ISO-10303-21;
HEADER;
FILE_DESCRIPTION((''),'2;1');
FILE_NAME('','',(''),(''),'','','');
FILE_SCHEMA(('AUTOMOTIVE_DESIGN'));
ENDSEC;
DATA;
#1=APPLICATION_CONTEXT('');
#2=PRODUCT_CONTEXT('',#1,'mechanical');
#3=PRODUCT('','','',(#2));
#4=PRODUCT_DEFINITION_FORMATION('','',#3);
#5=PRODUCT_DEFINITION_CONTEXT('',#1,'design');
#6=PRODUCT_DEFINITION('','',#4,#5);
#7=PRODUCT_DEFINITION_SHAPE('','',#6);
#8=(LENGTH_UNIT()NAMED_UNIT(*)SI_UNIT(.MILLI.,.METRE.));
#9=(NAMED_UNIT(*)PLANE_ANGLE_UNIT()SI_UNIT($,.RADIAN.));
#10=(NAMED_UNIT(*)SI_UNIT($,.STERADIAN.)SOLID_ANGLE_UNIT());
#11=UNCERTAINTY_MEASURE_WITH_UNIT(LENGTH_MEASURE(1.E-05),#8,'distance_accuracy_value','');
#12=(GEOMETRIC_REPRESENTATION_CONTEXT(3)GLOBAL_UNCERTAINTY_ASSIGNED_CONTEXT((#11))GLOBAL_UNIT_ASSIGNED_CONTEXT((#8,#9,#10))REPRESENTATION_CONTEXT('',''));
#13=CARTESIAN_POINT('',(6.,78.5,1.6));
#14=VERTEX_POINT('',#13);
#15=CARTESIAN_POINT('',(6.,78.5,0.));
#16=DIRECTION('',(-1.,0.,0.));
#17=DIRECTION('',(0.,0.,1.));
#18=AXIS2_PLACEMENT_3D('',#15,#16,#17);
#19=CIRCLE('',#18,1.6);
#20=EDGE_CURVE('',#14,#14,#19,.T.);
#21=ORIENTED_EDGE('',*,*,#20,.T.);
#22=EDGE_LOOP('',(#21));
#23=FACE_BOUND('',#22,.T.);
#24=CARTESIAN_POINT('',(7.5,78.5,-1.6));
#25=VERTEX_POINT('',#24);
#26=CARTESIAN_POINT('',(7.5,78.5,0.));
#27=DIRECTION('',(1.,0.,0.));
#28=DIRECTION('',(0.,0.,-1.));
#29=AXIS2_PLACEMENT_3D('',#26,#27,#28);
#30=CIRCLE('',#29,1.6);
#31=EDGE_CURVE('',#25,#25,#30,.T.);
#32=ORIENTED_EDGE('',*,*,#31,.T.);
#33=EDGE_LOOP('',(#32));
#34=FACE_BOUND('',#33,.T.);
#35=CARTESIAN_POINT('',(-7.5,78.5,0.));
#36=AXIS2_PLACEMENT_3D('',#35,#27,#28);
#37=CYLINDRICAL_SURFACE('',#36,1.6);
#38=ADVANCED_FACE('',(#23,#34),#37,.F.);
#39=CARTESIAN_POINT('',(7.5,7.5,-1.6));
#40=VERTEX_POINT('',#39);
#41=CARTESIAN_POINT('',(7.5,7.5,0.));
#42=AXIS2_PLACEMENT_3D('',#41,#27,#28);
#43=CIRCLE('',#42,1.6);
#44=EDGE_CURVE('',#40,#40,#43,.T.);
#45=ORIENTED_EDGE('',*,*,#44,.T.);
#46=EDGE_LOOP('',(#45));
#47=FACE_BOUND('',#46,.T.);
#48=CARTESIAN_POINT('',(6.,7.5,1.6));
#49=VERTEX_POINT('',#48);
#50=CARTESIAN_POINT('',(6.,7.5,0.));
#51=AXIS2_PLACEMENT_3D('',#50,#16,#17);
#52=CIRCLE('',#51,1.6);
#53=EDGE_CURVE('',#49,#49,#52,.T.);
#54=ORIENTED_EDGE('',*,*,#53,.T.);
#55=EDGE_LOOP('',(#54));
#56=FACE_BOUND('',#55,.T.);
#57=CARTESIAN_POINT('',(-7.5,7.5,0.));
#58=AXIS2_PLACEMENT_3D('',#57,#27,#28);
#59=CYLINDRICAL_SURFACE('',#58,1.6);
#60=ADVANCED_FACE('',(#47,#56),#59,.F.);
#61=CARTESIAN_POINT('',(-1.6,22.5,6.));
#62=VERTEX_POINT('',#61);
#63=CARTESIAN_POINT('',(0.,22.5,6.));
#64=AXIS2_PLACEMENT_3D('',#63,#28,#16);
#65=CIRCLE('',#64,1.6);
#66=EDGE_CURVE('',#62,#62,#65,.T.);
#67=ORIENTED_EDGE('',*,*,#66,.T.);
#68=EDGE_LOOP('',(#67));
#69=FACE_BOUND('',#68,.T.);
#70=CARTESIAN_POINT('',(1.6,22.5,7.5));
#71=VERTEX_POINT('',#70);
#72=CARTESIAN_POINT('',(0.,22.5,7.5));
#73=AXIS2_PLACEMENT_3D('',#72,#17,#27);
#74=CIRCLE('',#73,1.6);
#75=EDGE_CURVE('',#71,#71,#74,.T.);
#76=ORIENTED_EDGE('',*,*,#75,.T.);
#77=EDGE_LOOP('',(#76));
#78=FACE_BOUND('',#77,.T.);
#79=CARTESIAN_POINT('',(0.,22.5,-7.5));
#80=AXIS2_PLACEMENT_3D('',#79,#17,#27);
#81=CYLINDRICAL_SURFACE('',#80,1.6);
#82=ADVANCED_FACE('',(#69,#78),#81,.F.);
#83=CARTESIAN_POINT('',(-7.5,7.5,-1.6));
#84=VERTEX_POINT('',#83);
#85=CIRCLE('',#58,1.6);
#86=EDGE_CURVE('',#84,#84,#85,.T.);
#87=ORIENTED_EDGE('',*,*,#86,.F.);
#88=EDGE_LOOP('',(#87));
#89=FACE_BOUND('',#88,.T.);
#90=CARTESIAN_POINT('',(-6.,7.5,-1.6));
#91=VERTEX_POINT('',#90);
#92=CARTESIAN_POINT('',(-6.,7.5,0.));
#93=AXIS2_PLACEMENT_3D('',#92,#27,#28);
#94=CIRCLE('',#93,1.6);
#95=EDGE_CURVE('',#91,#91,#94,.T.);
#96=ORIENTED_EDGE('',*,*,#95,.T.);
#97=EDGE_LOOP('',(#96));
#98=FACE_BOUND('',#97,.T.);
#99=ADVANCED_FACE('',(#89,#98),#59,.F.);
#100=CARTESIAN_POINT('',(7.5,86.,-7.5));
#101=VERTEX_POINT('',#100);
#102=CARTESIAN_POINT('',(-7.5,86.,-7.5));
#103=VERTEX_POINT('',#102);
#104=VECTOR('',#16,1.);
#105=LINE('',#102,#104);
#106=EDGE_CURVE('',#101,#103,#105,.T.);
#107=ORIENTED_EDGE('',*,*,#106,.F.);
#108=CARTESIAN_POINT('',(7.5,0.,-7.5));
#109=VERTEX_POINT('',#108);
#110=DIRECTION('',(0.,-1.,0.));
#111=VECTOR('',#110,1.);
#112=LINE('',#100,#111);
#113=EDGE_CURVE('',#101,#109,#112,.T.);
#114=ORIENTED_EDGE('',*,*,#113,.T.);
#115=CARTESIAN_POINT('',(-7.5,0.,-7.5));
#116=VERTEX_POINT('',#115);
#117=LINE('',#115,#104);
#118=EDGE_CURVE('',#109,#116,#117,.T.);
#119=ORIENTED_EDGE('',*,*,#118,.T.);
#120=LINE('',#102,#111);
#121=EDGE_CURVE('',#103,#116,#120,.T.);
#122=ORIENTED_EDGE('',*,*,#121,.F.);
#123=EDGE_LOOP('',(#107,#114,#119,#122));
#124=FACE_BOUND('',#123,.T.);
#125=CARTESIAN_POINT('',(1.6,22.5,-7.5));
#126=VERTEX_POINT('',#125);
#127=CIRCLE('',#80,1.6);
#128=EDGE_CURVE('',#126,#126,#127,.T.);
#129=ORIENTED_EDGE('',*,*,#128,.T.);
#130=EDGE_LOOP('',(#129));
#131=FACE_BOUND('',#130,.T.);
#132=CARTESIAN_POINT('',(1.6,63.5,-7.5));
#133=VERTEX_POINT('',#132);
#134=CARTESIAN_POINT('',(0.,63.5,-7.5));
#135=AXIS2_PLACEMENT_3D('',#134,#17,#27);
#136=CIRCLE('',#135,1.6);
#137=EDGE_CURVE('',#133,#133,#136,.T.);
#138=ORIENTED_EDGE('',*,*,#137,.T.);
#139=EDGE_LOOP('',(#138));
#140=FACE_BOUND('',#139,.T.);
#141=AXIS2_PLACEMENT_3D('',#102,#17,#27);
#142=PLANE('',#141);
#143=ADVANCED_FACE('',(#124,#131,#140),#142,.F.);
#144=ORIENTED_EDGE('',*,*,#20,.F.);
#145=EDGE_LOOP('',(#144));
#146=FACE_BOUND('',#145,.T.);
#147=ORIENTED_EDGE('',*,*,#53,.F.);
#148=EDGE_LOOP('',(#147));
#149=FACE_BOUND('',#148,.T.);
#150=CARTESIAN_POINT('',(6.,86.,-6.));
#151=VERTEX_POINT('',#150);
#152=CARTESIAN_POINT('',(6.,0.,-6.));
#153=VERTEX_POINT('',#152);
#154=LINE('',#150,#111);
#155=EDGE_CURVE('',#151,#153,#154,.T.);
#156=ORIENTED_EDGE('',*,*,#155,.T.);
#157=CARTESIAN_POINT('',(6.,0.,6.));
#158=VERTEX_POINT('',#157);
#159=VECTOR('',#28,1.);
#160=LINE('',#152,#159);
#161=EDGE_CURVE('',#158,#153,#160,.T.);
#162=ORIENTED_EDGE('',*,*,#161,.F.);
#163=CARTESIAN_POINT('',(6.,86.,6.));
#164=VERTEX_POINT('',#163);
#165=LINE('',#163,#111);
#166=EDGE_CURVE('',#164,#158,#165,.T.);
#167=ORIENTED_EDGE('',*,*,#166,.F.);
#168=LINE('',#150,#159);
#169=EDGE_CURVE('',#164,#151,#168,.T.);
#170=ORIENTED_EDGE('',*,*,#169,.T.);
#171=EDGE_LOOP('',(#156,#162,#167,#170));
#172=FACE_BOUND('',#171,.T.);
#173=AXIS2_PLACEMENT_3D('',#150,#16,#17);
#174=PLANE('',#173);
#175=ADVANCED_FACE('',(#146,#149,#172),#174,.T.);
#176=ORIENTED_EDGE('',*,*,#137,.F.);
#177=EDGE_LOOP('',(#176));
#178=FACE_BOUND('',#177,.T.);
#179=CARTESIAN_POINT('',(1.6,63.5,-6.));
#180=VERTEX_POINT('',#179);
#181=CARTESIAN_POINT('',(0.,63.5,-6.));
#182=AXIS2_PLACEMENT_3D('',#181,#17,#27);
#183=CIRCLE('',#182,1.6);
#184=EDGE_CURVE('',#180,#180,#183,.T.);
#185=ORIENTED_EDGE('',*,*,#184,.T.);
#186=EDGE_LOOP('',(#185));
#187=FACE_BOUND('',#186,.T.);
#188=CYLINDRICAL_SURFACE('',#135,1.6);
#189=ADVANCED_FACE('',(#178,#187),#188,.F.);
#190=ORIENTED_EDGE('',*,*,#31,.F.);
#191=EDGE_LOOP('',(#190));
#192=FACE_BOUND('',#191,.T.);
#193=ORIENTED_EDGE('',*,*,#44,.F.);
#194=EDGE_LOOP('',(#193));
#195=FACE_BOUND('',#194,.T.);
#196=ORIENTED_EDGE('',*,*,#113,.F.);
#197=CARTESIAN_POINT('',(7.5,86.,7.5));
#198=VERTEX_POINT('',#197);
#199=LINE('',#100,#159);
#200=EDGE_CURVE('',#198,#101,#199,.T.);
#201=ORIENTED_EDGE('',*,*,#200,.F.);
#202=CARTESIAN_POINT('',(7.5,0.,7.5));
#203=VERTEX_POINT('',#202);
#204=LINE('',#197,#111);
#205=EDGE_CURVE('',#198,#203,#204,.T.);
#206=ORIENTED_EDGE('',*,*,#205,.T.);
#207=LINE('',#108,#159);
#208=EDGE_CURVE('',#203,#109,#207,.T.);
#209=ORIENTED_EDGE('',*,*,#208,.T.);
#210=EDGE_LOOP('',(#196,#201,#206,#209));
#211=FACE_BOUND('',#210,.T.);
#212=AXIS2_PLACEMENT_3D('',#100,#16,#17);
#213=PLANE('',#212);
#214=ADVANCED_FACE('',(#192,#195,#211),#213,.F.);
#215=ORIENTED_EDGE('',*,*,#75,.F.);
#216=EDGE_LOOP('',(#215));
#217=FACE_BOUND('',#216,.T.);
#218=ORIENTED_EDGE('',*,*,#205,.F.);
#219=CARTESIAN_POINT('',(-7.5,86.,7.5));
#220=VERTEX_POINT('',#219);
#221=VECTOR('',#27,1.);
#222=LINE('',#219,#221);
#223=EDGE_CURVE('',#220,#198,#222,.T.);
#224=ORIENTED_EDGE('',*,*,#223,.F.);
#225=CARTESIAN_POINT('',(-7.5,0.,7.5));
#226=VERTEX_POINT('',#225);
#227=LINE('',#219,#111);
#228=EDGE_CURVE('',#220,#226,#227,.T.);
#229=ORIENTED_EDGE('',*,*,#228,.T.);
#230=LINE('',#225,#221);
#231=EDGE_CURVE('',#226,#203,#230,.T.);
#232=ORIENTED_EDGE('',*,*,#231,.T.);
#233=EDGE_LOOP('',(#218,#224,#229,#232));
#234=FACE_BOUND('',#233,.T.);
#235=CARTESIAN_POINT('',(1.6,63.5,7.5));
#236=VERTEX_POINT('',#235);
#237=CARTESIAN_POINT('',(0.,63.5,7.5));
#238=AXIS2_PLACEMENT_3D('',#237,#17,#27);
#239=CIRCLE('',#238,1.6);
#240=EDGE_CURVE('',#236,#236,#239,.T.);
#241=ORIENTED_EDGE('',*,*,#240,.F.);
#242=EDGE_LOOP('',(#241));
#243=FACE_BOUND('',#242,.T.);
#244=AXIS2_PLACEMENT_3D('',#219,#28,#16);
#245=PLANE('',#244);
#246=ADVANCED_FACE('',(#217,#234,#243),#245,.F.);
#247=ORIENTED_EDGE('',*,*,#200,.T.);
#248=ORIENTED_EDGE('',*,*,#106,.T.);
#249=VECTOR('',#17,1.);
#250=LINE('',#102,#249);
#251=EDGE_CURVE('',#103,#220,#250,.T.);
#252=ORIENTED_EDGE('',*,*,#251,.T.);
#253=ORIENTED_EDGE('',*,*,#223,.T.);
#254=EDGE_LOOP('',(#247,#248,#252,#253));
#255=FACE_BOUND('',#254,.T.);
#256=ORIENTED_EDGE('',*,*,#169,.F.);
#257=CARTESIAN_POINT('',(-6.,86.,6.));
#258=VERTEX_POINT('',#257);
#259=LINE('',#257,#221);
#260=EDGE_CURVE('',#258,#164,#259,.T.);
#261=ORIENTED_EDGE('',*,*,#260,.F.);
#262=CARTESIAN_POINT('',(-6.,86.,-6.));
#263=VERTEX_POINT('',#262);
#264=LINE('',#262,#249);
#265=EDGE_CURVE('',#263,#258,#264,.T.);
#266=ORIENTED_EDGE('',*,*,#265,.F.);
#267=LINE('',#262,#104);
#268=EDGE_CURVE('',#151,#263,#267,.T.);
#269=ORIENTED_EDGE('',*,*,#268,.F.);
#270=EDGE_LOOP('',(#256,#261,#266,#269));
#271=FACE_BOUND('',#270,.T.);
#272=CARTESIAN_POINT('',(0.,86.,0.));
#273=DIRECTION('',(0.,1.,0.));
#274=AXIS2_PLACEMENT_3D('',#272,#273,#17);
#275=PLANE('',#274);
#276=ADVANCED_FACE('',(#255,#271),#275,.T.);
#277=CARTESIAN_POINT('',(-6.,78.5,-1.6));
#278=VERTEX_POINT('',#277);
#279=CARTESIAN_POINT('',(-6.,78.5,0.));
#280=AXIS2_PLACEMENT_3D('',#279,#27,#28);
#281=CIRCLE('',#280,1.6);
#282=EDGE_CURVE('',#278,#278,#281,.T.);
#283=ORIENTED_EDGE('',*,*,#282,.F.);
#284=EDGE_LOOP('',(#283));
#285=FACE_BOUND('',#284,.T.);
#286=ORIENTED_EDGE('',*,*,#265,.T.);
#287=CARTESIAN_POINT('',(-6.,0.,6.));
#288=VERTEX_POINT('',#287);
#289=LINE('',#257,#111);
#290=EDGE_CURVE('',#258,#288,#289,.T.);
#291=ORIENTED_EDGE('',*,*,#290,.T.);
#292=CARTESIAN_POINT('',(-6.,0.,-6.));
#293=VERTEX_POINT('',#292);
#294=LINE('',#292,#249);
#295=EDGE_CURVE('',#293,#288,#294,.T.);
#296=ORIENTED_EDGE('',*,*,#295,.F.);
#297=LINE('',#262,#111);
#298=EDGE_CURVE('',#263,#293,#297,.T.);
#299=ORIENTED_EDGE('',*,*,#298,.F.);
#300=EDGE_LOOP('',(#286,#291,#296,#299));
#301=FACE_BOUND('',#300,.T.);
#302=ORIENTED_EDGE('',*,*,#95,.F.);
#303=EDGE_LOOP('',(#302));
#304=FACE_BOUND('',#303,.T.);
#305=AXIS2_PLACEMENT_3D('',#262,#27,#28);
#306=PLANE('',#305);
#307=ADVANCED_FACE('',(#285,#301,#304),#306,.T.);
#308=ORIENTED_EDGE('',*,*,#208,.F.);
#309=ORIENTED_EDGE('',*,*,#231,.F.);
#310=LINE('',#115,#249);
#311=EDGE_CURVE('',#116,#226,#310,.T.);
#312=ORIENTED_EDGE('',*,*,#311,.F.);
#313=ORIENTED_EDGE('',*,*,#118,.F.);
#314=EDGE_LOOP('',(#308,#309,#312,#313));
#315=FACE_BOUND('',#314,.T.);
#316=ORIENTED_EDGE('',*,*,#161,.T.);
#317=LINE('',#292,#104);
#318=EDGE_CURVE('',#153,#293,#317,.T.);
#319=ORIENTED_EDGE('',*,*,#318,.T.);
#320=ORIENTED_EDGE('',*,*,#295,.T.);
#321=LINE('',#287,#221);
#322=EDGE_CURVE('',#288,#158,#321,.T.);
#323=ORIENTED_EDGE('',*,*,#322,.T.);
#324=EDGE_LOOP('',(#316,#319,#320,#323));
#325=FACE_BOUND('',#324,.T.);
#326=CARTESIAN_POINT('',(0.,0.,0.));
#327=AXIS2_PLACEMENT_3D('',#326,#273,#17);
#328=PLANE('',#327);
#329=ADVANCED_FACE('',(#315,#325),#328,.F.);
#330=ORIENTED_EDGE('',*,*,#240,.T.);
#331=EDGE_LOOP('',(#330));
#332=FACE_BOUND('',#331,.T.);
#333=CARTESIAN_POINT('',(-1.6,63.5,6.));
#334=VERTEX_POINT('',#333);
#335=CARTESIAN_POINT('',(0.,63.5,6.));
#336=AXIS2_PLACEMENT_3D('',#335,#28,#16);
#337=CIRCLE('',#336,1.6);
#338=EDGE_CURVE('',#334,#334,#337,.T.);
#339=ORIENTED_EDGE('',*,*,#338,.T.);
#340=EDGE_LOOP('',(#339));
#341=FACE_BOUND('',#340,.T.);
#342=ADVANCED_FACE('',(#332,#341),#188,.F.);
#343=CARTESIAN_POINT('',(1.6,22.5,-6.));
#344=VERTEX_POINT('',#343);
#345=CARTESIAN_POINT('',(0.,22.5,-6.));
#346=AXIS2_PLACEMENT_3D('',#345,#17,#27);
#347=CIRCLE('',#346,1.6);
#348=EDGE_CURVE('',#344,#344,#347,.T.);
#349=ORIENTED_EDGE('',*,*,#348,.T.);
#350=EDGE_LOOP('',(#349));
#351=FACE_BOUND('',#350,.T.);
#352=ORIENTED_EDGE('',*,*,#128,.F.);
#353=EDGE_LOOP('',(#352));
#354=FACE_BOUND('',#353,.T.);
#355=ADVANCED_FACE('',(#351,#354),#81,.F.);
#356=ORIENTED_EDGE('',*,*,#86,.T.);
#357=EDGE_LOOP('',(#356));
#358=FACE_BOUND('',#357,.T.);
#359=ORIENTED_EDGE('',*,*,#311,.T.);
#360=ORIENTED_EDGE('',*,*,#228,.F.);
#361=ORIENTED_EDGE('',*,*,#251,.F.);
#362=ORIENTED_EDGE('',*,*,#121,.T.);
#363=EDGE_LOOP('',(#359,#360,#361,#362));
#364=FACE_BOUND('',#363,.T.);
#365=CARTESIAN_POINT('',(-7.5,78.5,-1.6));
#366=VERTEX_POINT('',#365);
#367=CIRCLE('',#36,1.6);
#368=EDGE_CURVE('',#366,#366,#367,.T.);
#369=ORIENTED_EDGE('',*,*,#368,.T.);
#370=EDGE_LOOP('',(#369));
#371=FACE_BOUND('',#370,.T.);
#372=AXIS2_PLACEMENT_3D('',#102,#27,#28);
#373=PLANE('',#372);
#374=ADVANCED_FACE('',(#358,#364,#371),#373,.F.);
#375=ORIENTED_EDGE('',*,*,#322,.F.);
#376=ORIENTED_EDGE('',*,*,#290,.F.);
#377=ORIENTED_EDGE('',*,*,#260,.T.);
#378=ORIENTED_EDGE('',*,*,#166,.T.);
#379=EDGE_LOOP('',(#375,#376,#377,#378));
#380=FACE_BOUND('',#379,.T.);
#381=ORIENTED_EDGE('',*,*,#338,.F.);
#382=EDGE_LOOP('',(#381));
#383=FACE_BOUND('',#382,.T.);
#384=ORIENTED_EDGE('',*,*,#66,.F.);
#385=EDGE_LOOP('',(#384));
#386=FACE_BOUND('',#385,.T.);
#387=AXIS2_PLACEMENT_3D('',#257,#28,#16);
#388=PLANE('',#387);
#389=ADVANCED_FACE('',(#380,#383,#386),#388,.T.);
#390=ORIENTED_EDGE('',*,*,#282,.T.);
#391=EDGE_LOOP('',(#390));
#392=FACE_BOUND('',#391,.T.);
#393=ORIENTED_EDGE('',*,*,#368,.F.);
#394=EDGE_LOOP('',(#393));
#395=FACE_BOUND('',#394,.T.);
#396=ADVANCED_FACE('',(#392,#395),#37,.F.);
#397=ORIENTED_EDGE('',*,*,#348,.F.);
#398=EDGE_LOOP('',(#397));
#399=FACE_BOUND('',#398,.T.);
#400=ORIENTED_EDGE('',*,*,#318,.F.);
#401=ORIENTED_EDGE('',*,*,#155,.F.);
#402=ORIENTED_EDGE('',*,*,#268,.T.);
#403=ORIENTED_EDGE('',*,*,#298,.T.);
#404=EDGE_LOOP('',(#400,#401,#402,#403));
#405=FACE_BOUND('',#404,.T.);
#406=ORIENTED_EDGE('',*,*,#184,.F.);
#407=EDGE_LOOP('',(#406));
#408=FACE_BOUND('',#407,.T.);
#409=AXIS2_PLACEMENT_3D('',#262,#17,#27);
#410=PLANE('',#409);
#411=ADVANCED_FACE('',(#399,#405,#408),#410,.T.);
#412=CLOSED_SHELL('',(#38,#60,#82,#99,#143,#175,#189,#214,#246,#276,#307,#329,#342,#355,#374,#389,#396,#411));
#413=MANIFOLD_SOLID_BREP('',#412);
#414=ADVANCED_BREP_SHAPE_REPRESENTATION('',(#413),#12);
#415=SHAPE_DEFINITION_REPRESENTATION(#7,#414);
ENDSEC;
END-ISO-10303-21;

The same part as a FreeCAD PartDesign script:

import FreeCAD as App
import Part
import Sketcher

doc = App.newDocument("Part")
params = doc.addObject("Spreadsheet::Sheet", "Params")
for row, (alias, value) in enumerate([
    ("sketch1_width", "15 mm"),
    ("sketch1_width2", "12 mm"),
    ("pad1_length", "86 mm"),
    ("sketch2_diameter", "3.2 mm"),
    ("sketch3_diameter", "3.2 mm"),
], start=1):
    params.set(f"A{row}", alias)
    params.set(f"B{row}", "=" + value)
    params.setAlias(f"B{row}", alias)

body = doc.addObject("PartDesign::Body", "Body")

# Sketch on XZ plane
sketch1 = doc.addObject("Sketcher::SketchObject", "Sketch")
body.addObject(sketch1)
sketch1.AttachmentSupport = (doc.XZ_Plane, [""])
sketch1.MapMode = "FlatFace"
sketch1.addGeometry([
    Part.LineSegment(App.Vector(-8, -8, 0), App.Vector(-8, 8, 0)),  # 0
    Part.LineSegment(App.Vector(-8, 8, 0), App.Vector(8, 8, 0)),  # 1
    Part.LineSegment(App.Vector(8, 8, 0), App.Vector(8, -8, 0)),  # 2
    Part.LineSegment(App.Vector(8, -8, 0), App.Vector(-8, -8, 0)),  # 3
    Part.LineSegment(App.Vector(6, 6, 0), App.Vector(-6, 6, 0)),  # 4
    Part.LineSegment(App.Vector(-6, 6, 0), App.Vector(-6, -6, 0)),  # 5
    Part.LineSegment(App.Vector(-6, -6, 0), App.Vector(6, -6, 0)),  # 6
    Part.LineSegment(App.Vector(6, -6, 0), App.Vector(6, 6, 0)),  # 7
], False)
sketch1.addConstraint([
    Sketcher.Constraint("Coincident", 0, 2, 1, 1),
    Sketcher.Constraint("Coincident", 1, 2, 2, 1),
    Sketcher.Constraint("Coincident", 2, 2, 3, 1),
    Sketcher.Constraint("Coincident", 3, 2, 0, 1),
    Sketcher.Constraint("Coincident", 4, 2, 5, 1),
    Sketcher.Constraint("Coincident", 5, 2, 6, 1),
    Sketcher.Constraint("Coincident", 6, 2, 7, 1),
    Sketcher.Constraint("Coincident", 7, 2, 4, 1),
    Sketcher.Constraint("Vertical", 0),
    Sketcher.Constraint("Horizontal", 1),
    Sketcher.Constraint("Vertical", 2),
    Sketcher.Constraint("Horizontal", 3),
    Sketcher.Constraint("Horizontal", 4),
    Sketcher.Constraint("Vertical", 5),
    Sketcher.Constraint("Horizontal", 6),
    Sketcher.Constraint("Vertical", 7),
    Sketcher.Constraint("Symmetric", 0, 2, 2, 2, -1, 1),
    Sketcher.Constraint("Symmetric", 4, 2, 6, 2, -1, 1),
    Sketcher.Constraint("Equal", 3, 0),
    Sketcher.Constraint("Equal", 6, 5),
    Sketcher.Constraint("DistanceX", 1, 1, 1, 2, 15.0),
    Sketcher.Constraint("DistanceX", 4, 2, 4, 1, 12.0),
])
sketch1.setExpression("Constraints[20]", "Params.sketch1_width")
sketch1.setExpression("Constraints[21]", "Params.sketch1_width2")
pad1 = doc.addObject("PartDesign::Pad", "Pad")
body.addObject(pad1)
pad1.Profile = sketch1
pad1.setExpression("Length", "Params.pad1_length")
pad1.Reversed = True

# Sketch on XY plane
sketch2 = doc.addObject("Sketcher::SketchObject", "Sketch001")
body.addObject(sketch2)
sketch2.AttachmentSupport = (doc.XY_Plane, [""])
sketch2.MapMode = "FlatFace"
sketch2.AttachmentOffset = App.Placement(App.Vector(0, 0, 7.5), App.Rotation())
sketch2.addGeometry([
    Part.Circle(App.Vector(0, 63.5, 0), App.Vector(0, 0, 1), 1.6),
    Part.Circle(App.Vector(0, 22.5, 0), App.Vector(0, 0, 1), 1.6),
], False)
sketch2.addConstraint([
    Sketcher.Constraint("Equal", 0, 1),
    Sketcher.Constraint("PointOnObject", 0, 3, -2),
    Sketcher.Constraint("PointOnObject", 1, 3, -2),
    Sketcher.Constraint("Diameter", 0, 3.2),
    Sketcher.Constraint("DistanceY", 1, 3, 0, 3, 41.0),
    Sketcher.Constraint("DistanceY", -1, 1, 0, 3, 63.5),
])
sketch2.setExpression("Constraints[3]", "Params.sketch2_diameter")
pocket1 = doc.addObject("PartDesign::Pocket", "Pocket")
body.addObject(pocket1)
pocket1.Profile = sketch2
pocket1.Type = "ThroughAll"

# Sketch on YZ plane
sketch3 = doc.addObject("Sketcher::SketchObject", "Sketch002")
body.addObject(sketch3)
sketch3.AttachmentSupport = (doc.YZ_Plane, [""])
sketch3.MapMode = "FlatFace"
sketch3.AttachmentOffset = App.Placement(App.Vector(0, 0, 7.5), App.Rotation())
sketch3.addGeometry([
    Part.Circle(App.Vector(78.5, 0, 0), App.Vector(0, 0, 1), 1.6),
    Part.Circle(App.Vector(7.5, 0, 0), App.Vector(0, 0, 1), 1.6),
], False)
sketch3.addConstraint([
    Sketcher.Constraint("Equal", 0, 1),
    Sketcher.Constraint("PointOnObject", 0, 3, -1),
    Sketcher.Constraint("PointOnObject", 1, 3, -1),
    Sketcher.Constraint("Diameter", 0, 3.2),
    Sketcher.Constraint("DistanceX", 1, 3, 0, 3, 71.0),
    Sketcher.Constraint("DistanceX", -1, 1, 0, 3, 78.5),
])
sketch3.setExpression("Constraints[3]", "Params.sketch3_diameter")
pocket2 = doc.addObject("PartDesign::Pocket", "Pocket001")
body.addObject(pocket2)
pocket2.Profile = sketch3
pocket2.Type = "ThroughAll"

doc.recompute()
